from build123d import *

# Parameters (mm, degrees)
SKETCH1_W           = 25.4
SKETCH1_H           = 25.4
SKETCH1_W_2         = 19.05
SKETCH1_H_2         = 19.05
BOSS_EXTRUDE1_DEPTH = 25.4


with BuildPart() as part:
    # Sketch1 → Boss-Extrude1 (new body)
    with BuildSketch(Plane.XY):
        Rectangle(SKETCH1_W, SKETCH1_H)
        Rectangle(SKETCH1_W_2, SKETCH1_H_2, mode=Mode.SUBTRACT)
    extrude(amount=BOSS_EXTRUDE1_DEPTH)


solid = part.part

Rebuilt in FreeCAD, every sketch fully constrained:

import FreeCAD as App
import Part
import Sketcher
from FreeCAD import Vector
Q = App.Units.Quantity

doc = App.newDocument("Part")
body = doc.addObject("PartDesign::Body", "Body")

sketch1 = body.newObject("Sketcher::SketchObject", "Sketch")
sketch1.AttachmentSupport = (doc.getObject("XY_Plane"), [""])
sketch1.MapMode = "FlatFace"
sketch1.addGeometry([
    Part.LineSegment(Vector(-13, 13, 0), Vector(-13, -13, 0)),
    Part.LineSegment(Vector(-13, -13, 0), Vector(13, -13, 0)),
    Part.LineSegment(Vector(13, -13, 0), Vector(13, 13, 0)),
    Part.LineSegment(Vector(13, 13, 0), Vector(-13, 13, 0)),
    Part.LineSegment(Vector(10, -10, 0), Vector(-10, -10, 0)),
    Part.LineSegment(Vector(-10, -10, 0), Vector(-10, 10, 0)),
    Part.LineSegment(Vector(-10, 10, 0), Vector(10, 10, 0)),
    Part.LineSegment(Vector(10, 10, 0), Vector(10, -10, 0)),
], False)
sketch1.addConstraint([
    Sketcher.Constraint("Coincident", 0, 2, 1, 1),
    Sketcher.Constraint("Coincident", 1, 2, 2, 1),
    Sketcher.Constraint("Coincident", 2, 2, 3, 1),
    Sketcher.Constraint("Coincident", 3, 2, 0, 1),
    Sketcher.Constraint("Coincident", 4, 2, 5, 1),
    Sketcher.Constraint("Coincident", 5, 2, 6, 1),
    Sketcher.Constraint("Coincident", 6, 2, 7, 1),
    Sketcher.Constraint("Coincident", 7, 2, 4, 1),
    Sketcher.Constraint("Vertical", 0),
    Sketcher.Constraint("Horizontal", 1),
    Sketcher.Constraint("Vertical", 2),
    Sketcher.Constraint("Horizontal", 3),
    Sketcher.Constraint("Horizontal", 4),
    Sketcher.Constraint("Vertical", 5),
    Sketcher.Constraint("Horizontal", 6),
    Sketcher.Constraint("Vertical", 7),
    Sketcher.Constraint("Symmetric", 0, 2, 2, 2, -1, 1),
    Sketcher.Constraint("Symmetric", 4, 2, 6, 2, -1, 1),
    Sketcher.Constraint("Equal", 3, 0),
    Sketcher.Constraint("Equal", 6, 5),
    Sketcher.Constraint("DistanceX", 1, 1, 1, 2, Q("1 in")),
    Sketcher.Constraint("DistanceX", 4, 2, 4, 1, Q("0.75 in")),
])
pad1 = body.newObject("PartDesign::Pad", "Pad")
pad1.Profile = sketch1
pad1.Length = Q("1 in")

doc.recompute()
